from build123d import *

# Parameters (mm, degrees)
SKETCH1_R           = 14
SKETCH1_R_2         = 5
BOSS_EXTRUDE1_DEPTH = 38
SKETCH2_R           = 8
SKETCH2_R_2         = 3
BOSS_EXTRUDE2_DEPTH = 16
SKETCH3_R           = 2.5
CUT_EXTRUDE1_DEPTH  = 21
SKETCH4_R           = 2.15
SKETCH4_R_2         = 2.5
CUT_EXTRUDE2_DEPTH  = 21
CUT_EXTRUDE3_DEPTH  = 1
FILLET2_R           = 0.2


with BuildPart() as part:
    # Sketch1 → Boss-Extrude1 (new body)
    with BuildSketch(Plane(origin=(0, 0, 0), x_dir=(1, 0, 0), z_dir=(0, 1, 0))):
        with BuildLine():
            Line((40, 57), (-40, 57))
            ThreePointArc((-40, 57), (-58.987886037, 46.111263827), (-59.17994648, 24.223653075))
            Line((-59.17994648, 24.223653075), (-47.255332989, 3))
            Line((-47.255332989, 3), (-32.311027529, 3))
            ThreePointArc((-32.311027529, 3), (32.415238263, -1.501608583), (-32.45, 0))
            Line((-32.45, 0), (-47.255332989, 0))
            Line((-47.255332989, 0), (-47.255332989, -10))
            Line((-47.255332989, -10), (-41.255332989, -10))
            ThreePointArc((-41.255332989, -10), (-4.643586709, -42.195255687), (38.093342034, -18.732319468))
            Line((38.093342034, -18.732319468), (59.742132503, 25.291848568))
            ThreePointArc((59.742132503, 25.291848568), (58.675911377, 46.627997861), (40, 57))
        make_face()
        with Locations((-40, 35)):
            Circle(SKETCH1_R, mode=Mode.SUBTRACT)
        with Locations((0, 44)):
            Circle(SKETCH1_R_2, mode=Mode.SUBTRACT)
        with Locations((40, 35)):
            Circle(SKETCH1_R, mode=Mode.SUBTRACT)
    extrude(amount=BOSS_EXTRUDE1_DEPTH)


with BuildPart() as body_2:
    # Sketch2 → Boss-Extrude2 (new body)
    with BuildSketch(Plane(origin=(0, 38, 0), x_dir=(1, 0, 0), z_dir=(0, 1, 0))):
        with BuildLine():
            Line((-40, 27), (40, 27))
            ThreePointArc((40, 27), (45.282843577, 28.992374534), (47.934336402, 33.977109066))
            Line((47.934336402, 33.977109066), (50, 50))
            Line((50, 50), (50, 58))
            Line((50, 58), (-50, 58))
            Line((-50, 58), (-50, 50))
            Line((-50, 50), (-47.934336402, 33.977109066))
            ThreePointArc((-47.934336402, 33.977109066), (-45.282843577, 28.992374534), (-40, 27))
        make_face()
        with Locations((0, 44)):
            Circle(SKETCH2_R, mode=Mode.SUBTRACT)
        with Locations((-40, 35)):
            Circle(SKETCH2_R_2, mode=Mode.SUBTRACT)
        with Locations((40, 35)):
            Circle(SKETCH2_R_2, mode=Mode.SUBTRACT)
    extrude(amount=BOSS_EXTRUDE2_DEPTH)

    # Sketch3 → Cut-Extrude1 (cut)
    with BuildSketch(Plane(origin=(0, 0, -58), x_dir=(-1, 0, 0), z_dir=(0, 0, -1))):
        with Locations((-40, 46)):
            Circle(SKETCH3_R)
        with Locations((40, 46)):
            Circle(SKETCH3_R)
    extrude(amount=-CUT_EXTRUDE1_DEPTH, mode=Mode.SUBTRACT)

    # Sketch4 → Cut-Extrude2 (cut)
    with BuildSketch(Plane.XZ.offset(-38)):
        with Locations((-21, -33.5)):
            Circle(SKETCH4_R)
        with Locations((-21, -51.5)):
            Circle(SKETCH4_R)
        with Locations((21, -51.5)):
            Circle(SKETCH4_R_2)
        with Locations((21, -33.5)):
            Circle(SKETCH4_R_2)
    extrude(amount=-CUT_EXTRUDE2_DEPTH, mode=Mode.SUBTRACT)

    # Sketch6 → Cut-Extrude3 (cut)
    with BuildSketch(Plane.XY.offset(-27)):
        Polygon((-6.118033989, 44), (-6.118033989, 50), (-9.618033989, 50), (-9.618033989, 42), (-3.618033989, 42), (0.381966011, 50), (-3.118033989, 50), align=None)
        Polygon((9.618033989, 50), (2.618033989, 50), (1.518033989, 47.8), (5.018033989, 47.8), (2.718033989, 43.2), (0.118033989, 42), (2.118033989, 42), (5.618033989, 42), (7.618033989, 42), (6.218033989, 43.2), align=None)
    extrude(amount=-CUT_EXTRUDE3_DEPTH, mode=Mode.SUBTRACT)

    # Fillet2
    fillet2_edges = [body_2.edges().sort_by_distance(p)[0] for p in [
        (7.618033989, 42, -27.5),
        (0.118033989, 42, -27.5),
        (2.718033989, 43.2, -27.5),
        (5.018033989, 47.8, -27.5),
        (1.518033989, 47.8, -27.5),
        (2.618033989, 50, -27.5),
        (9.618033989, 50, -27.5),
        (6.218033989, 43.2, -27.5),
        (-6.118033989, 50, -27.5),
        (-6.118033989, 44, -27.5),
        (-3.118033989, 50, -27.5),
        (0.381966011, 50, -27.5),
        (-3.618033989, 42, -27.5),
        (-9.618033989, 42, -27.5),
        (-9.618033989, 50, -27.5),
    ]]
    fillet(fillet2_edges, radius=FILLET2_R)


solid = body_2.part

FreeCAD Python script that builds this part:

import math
import FreeCAD as App
import Part
import Sketcher
Q = App.Units.Quantity


def edges_at(feature, points):
    """Names of the edges that pass closest to the given points."""
    edges = feature.Shape.Edges
    near = lambda p: min(range(len(edges)), key=lambda i: edges[i].distToShape(Part.Vertex(*p))[0])
    return sorted({f"Edge{near(p) + 1}" for p in points})

doc = App.newDocument("Part")
body = doc.addObject("PartDesign::Body", "Body")

sketch1 = body.newObject("Sketcher::SketchObject", "Sketch")
sketch1.AttachmentSupport = (doc.getObject("XZ_Plane"), [""])
sketch1.MapMode = "FlatFace"
sketch1.addGeometry([
    Part.LineSegment(App.Vector(40, -57, 0), App.Vector(-40, -57, 0)),
    Part.ArcOfCircle(Part.Circle(App.Vector(-40, -35, 0), App.Vector(0, 0, 1), 22), math.radians(151), math.radians(270)),
    Part.LineSegment(App.Vector(-59.2, -24.2, 0), App.Vector(-47.3, -3, 0)),
    Part.LineSegment(App.Vector(-47.3, -3, 0), App.Vector(-32.3, -3, 0)),
    Part.ArcOfCircle(Part.Circle(App.Vector(0, 0, 0), App.Vector(0, 0, 1), 32.5), math.radians(-175), math.radians(180)),
    Part.LineSegment(App.Vector(-32.5, 0, 0), App.Vector(-47.3, 0, 0)),
    Part.LineSegment(App.Vector(-47.3, 0, 0), App.Vector(-47.3, 10, 0)),
    Part.LineSegment(App.Vector(-47.3, 10, 0), App.Vector(-41.3, 10, 0)),
    Part.ArcOfCircle(Part.Circle(App.Vector(0, 0, 0), App.Vector(0, 0, 1), 42.5), math.radians(26), math.radians(166)),
    Part.LineSegment(App.Vector(38.1, 18.7, 0), App.Vector(59.7, -25.3, 0)),
    Part.ArcOfCircle(Part.Circle(App.Vector(40, -35, 0), App.Vector(0, 0, 1), 22), math.radians(-90), math.radians(26)),
    Part.Circle(App.Vector(-40, -35, 0), App.Vector(0, 0, 1), 14),
    Part.Circle(App.Vector(40, -35, 0), App.Vector(0, 0, 1), 14),
    Part.Circle(App.Vector(0, -44, 0), App.Vector(0, 0, 1), 5),
], False)
sketch1.addConstraint([
    Sketcher.Constraint("Tangent", 0, 2, 1, 2),
    Sketcher.Constraint("Tangent", 1, 1, 2, 1),
    Sketcher.Constraint("Coincident", 2, 2, 3, 1),
    Sketcher.Constraint("Coincident", 3, 2, 4, 1),
    Sketcher.Constraint("Coincident", 4, 2, 5, 1),
    Sketcher.Constraint("Coincident", 5, 2, 6, 1),
    Sketcher.Constraint("Coincident", 6, 2, 7, 1),
    Sketcher.Constraint("Coincident", 7, 2, 8, 2),
    Sketcher.Constraint("Tangent", 8, 1, 9, 1),
    Sketcher.Constraint("Tangent", 9, 2, 10, 2),
    Sketcher.Constraint("Tangent", 10, 1, 0, 1),
    Sketcher.Constraint("Horizontal", 0),
    Sketcher.Constraint("Horizontal", 3),
    Sketcher.Constraint("Horizontal", 5),
    Sketcher.Constraint("Vertical", 6),
    Sketcher.Constraint("Horizontal", 7),
    Sketcher.Constraint("Coincident", 4, 3, -1, 1),
    Sketcher.Constraint("Coincident", 8, 3, -1, 1),
    Sketcher.Constraint("Coincident", 11, 3, 1, 3),
    Sketcher.Constraint("Coincident", 12, 3, 10, 3),
    Sketcher.Constraint("Equal", 1, 10),
    Sketcher.Constraint("Equal", 11, 12),
    Sketcher.Constraint("PointOnObject", 13, 3, -2),
    Sketcher.Constraint("PointOnObject", 4, 2, -1),
    Sketcher.Constraint("Vertical", 2, 2, 5, 2),
    Sketcher.Constraint("Diameter", 11, Q("28 mm")),
    Sketcher.Constraint("Diameter", 13, Q("10 mm")),
    Sketcher.Constraint("Radius", 1, Q("22 mm")),
    Sketcher.Constraint("DistanceX", 0, 2, 0, 1, Q("80 mm")),
    Sketcher.Constraint("DistanceX", 7, 1, 7, 2, Q("6 mm")),
    Sketcher.Constraint("DistanceY", 6, 1, 6, 2, Q("10 mm")),
    Sketcher.Constraint("Radius", 4, Q("32.45 mm")),
    Sketcher.Constraint("Radius", 8, Q("42.45 mm")),
    Sketcher.Constraint("DistanceX", 1, 3, -1, 1, Q("40 mm")),
    Sketcher.Constraint("DistanceY", 1, 3, -1, 1, Q("35 mm")),
    Sketcher.Constraint("DistanceY", 13, 3, -1, 1, Q("44 mm")),
    Sketcher.Constraint("DistanceY", 2, 2, -1, 1, Q("3 mm")),
])
pad1 = body.newObject("PartDesign::Pad", "Pad")
pad1.Profile = sketch1
pad1.Length = 38
pad1.Reversed = True
body2 = doc.addObject("PartDesign::Body", "Body001")

sketch2 = body2.newObject("Sketcher::SketchObject", "Sketch001")
sketch2.AttachmentSupport = (doc.getObject("XZ_Plane001"), [""])
sketch2.MapMode = "FlatFace"
sketch2.AttachmentOffset = App.Placement(App.Vector(0, 0, -38), App.Rotation())
sketch2.addGeometry([
    Part.LineSegment(App.Vector(-40, -27, 0), App.Vector(40, -27, 0)),
    Part.ArcOfCircle(Part.Circle(App.Vector(40, -35, 0), App.Vector(0, 0, 1), 8), math.radians(7), math.radians(90)),
    Part.LineSegment(App.Vector(47.9, -34, 0), App.Vector(50, -50, 0)),
    Part.LineSegment(App.Vector(50, -50, 0), App.Vector(50, -58, 0)),
    Part.LineSegment(App.Vector(50, -58, 0), App.Vector(-50, -58, 0)),
    Part.LineSegment(App.Vector(-50, -58, 0), App.Vector(-50, -50, 0)),
    Part.LineSegment(App.Vector(-50, -50, 0), App.Vector(-47.9, -34, 0)),
    Part.ArcOfCircle(Part.Circle(App.Vector(-40, -35, 0), App.Vector(0, 0, 1), 8), math.radians(90), math.radians(173)),
    Part.Circle(App.Vector(-40, -35, 0), App.Vector(0, 0, 1), 3),
    Part.Circle(App.Vector(40, -35, 0), App.Vector(0, 0, 1), 3),
    Part.Circle(App.Vector(0, -44, 0), App.Vector(0, 0, 1), 8),
], False)
sketch2.addConstraint([
    Sketcher.Constraint("Tangent", 0, 2, 1, 2),
    Sketcher.Constraint("Tangent", 1, 1, 2, 1),
    Sketcher.Constraint("Coincident", 2, 2, 3, 1),
    Sketcher.Constraint("Coincident", 3, 2, 4, 1),
    Sketcher.Constraint("Coincident", 4, 2, 5, 1),
    Sketcher.Constraint("Coincident", 5, 2, 6, 1),
    Sketcher.Constraint("Tangent", 6, 2, 7, 2),
    Sketcher.Constraint("Tangent", 7, 1, 0, 1),
    Sketcher.Constraint("Horizontal", 0),
    Sketcher.Constraint("Vertical", 3),
    Sketcher.Constraint("Horizontal", 4),
    Sketcher.Constraint("Vertical", 5),
    Sketcher.Constraint("Coincident", 8, 3, 7, 3),
    Sketcher.Constraint("Coincident", 9, 3, 1, 3),
    Sketcher.Constraint("Equal", 1, 7),
    Sketcher.Constraint("Equal", 8, 9),
    Sketcher.Constraint("Equal", 7, 10),
    Sketcher.Constraint("Symmetric", 2, 2, 5, 2, -2),
    Sketcher.Constraint("PointOnObject", 10, 3, -2),
    Sketcher.Constraint("Horizontal", 1, 1, 6, 2),
    Sketcher.Constraint("Diameter", 8, Q("6 mm")),
    Sketcher.Constraint("Diameter", 10, Q("16 mm")),
    Sketcher.Constraint("DistanceX", 0, 1, 0, 2, Q("80 mm")),
    Sketcher.Constraint("DistanceX", 4, 2, 4, 1, Q("100 mm")),
    Sketcher.Constraint("DistanceY", 3, 2, 3, 1, Q("8 mm")),
    Sketcher.Constraint("DistanceY", 1, 3, -1, 1, Q("35 mm")),
    Sketcher.Constraint("DistanceY", 10, 3, -1, 1, Q("44 mm")),
    Sketcher.Constraint("DistanceY", 2, 2, -1, 1, Q("50 mm")),
])
pad2 = body2.newObject("PartDesign::Pad", "Pad001")
pad2.Profile = sketch2
pad2.Length = 16
pad2.Reversed = True

sketch3 = body2.newObject("Sketcher::SketchObject", "Sketch002")
sketch3.AttachmentSupport = (doc.getObject("XY_Plane001"), [""])
sketch3.MapMode = "FlatFace"
sketch3.AttachmentOffset = App.Placement(App.Vector(0, 0, -58), App.Rotation())
sketch3.addGeometry([
    Part.Circle(App.Vector(40, 46, 0), App.Vector(0, 0, 1), 2.5),
    Part.Circle(App.Vector(-40, 46, 0), App.Vector(0, 0, 1), 2.5),
], False)
sketch3.addConstraint([
    Sketcher.Constraint("Equal", 0, 1),
    Sketcher.Constraint("Symmetric", 0, 3, 1, 3, -2),
    Sketcher.Constraint("Diameter", 0, Q("5 mm")),
    Sketcher.Constraint("DistanceX", -1, 1, 0, 3, Q("40 mm")),
    Sketcher.Constraint("DistanceY", -1, 1, 0, 3, Q("46 mm")),
])
pocket1 = body2.newObject("PartDesign::Pocket", "Pocket")
pocket1.Profile = sketch3
pocket1.Length = 21
pocket1.Reversed = True

sketch4 = body2.newObject("Sketcher::SketchObject", "Sketch003")
sketch4.AttachmentSupport = (doc.getObject("XZ_Plane001"), [""])
sketch4.MapMode = "FlatFace"
sketch4.AttachmentOffset = App.Placement(App.Vector(0, 0, -38), App.Rotation())
sketch4.addGeometry([
    Part.Circle(App.Vector(-21, -33.5, 0), App.Vector(0, 0, 1), 2.1),
    Part.Circle(App.Vector(-21, -51.5, 0), App.Vector(0, 0, 1), 2.1),
    Part.Circle(App.Vector(21, -51.5, 0), App.Vector(0, 0, 1), 2.5),
    Part.Circle(App.Vector(21, -33.5, 0), App.Vector(0, 0, 1), 2.5),
], False)
sketch4.addConstraint([
    Sketcher.Constraint("Equal", 0, 1),
    Sketcher.Constraint("Equal", 2, 3),
    Sketcher.Constraint("Symmetric", 1, 3, 2, 3, -2),
    Sketcher.Constraint("Symmetric", 0, 3, 3, 3, -2),
    Sketcher.Constraint("Vertical", 0, 3, 1, 3),
    Sketcher.Constraint("Diameter", 2, Q("5 mm")),
    Sketcher.Constraint("Diameter", 0, Q("4.3 mm")),
    Sketcher.Constraint("DistanceX", 0, 3, -1, 1, Q("21 mm")),
    Sketcher.Constraint("DistanceY", 1, 3, 0, 3, Q("18 mm")),
    Sketcher.Constraint("DistanceY", 0, 3, -1, 1, Q("33.5 mm")),
])
pocket2 = body2.newObject("PartDesign::Pocket", "Pocket001")
pocket2.Profile = sketch4
pocket2.Length = 21

sketch5 = body2.newObject("Sketcher::SketchObject", "Sketch004")
sketch5.AttachmentSupport = (doc.getObject("XY_Plane001"), [""])
sketch5.MapMode = "FlatFace"
sketch5.AttachmentOffset = App.Placement(App.Vector(0, 0, -27), App.Rotation())
sketch5.addGeometry([
    Part.LineSegment(App.Vector(-6.1, 44, 0), App.Vector(-6.1, 50, 0)),
    Part.LineSegment(App.Vector(-6.1, 50, 0), App.Vector(-9.6, 50, 0)),
    Part.LineSegment(App.Vector(-9.6, 50, 0), App.Vector(-9.6, 42, 0)),
    Part.LineSegment(App.Vector(-9.6, 42, 0), App.Vector(-3.6, 42, 0)),
    Part.LineSegment(App.Vector(-3.6, 42, 0), App.Vector(0.4, 50, 0)),
    Part.LineSegment(App.Vector(0.4, 50, 0), App.Vector(-3.1, 50, 0)),
    Part.LineSegment(App.Vector(-3.1, 50, 0), App.Vector(-6.1, 44, 0)),
    Part.LineSegment(App.Vector(9.6, 50, 0), App.Vector(2.6, 50, 0)),
    Part.LineSegment(App.Vector(2.6, 50, 0), App.Vector(1.5, 47.8, 0)),
    Part.LineSegment(App.Vector(1.5, 47.8, 0), App.Vector(5, 47.8, 0)),
    Part.LineSegment(App.Vector(5, 47.8, 0), App.Vector(2.7, 43.2, 0)),
    Part.LineSegment(App.Vector(2.7, 43.2, 0), App.Vector(0.1, 42, 0)),
    Part.LineSegment(App.Vector(0.1, 42, 0), App.Vector(7.6, 42, 0)),
    Part.LineSegment(App.Vector(7.6, 42, 0), App.Vector(6.2, 43.2, 0)),
    Part.LineSegment(App.Vector(6.2, 43.2, 0), App.Vector(9.6, 50, 0)),
], False)
sketch5.addConstraint([
    Sketcher.Constraint("Coincident", 0, 2, 1, 1),
    Sketcher.Constraint("Coincident", 1, 2, 2, 1),
    Sketcher.Constraint("Coincident", 2, 2, 3, 1),
    Sketcher.Constraint("Coincident", 3, 2, 4, 1),
    Sketcher.Constraint("Coincident", 4, 2, 5, 1),
    Sketcher.Constraint("Coincident", 5, 2, 6, 1),
    Sketcher.Constraint("Coincident", 6, 2, 0, 1),
    Sketcher.Constraint("Coincident", 7, 2, 8, 1),
    Sketcher.Constraint("Coincident", 8, 2, 9, 1),
    Sketcher.Constraint("Coincident", 9, 2, 10, 1),
    Sketcher.Constraint("Coincident", 10, 2, 11, 1),
    Sketcher.Constraint("Coincident", 11, 2, 12, 1),
    Sketcher.Constraint("Coincident", 12, 2, 13, 1),
    Sketcher.Constraint("Coincident", 13, 2, 14, 1),
    Sketcher.Constraint("Coincident", 14, 2, 7, 1),
    Sketcher.Constraint("Vertical", 0),
    Sketcher.Constraint("Horizontal", 1),
    Sketcher.Constraint("Vertical", 2),
    Sketcher.Constraint("Horizontal", 3),
    Sketcher.Constraint("Horizontal", 5),
    Sketcher.Constraint("Horizontal", 7),
    Sketcher.Constraint("Horizontal", 9),
    Sketcher.Constraint("Horizontal", 12),
    Sketcher.Constraint("Symmetric", 1, 2, 14, 2, -2),
    Sketcher.Constraint("Parallel", 4, 6),
    Sketcher.Constraint("Parallel", 6, 8),
    Sketcher.Constraint("Parallel", 8, 10),
    Sketcher.Constraint("Parallel", 10, 14),
    Sketcher.Constraint("Horizontal", 1, 2, 4, 2),
    Sketcher.Constraint("Horizontal", 3, 2, 11, 2),
    Sketcher.Constraint("Horizontal", 10, 2, 13, 2),
    Sketcher.Constraint("Equal", 1, 5),
    Sketcher.Constraint("Equal", 5, 9),
    Sketcher.Constraint("Equal", 3, 0),
    Sketcher.Constraint("DistanceX", 3, 1, 3, 2, Q("6 mm")),
    Sketcher.Constraint("DistanceX", 7, 2, 7, 1, Q("7 mm")),
    Sketcher.Constraint("DistanceY", 2, 2, 2, 1, Q("8 mm")),
    Sketcher.Constraint("DistanceX", 1, 2, 1, 1, Q("3.5 mm")),
    Sketcher.Constraint("DistanceX", 12, 1, 12, 2, Q("7.5 mm")),
    Sketcher.Constraint("DistanceY", -1, 1, 0, 2, Q("50 mm")),
    Sketcher.Constraint("DistanceX", 7, 2, 12, 2, Q("5 mm")),
    Sketcher.Constraint("DistanceY", -1, 1, 8, 2, Q("47.8 mm")),
    Sketcher.Constraint("DistanceY", -1, 1, 10, 2, Q("43.2 mm")),
    Sketcher.Constraint("DistanceX", 0, 2, -1, 1, Q("6.118034 mm")),
])
pocket3 = body2.newObject("PartDesign::Pocket", "Pocket002")
pocket3.Profile = sketch5
pocket3.Length = 1
doc.recompute()

fillet = body2.newObject("PartDesign::Fillet", "Fillet")
fillet.Base = (pocket3, edges_at(pocket3, [
    (7.618, 42, -27.5),
    (0.118, 42, -27.5),
    (2.718, 43.2, -27.5),
    (5.018, 47.8, -27.5),
    (1.518, 47.8, -27.5),
    (2.618, 50, -27.5),
    (9.618, 50, -27.5),
    (6.218, 43.2, -27.5),
    (-6.118, 50, -27.5),
    (-6.118, 44, -27.5),
    (-3.118, 50, -27.5),
    (0.382, 50, -27.5),
    (-3.618, 42, -27.5),
    (-9.618, 42, -27.5),
    (-9.618, 50, -27.5),
]))
fillet.Radius = 0.2
body.Visibility = False

doc.recompute()
